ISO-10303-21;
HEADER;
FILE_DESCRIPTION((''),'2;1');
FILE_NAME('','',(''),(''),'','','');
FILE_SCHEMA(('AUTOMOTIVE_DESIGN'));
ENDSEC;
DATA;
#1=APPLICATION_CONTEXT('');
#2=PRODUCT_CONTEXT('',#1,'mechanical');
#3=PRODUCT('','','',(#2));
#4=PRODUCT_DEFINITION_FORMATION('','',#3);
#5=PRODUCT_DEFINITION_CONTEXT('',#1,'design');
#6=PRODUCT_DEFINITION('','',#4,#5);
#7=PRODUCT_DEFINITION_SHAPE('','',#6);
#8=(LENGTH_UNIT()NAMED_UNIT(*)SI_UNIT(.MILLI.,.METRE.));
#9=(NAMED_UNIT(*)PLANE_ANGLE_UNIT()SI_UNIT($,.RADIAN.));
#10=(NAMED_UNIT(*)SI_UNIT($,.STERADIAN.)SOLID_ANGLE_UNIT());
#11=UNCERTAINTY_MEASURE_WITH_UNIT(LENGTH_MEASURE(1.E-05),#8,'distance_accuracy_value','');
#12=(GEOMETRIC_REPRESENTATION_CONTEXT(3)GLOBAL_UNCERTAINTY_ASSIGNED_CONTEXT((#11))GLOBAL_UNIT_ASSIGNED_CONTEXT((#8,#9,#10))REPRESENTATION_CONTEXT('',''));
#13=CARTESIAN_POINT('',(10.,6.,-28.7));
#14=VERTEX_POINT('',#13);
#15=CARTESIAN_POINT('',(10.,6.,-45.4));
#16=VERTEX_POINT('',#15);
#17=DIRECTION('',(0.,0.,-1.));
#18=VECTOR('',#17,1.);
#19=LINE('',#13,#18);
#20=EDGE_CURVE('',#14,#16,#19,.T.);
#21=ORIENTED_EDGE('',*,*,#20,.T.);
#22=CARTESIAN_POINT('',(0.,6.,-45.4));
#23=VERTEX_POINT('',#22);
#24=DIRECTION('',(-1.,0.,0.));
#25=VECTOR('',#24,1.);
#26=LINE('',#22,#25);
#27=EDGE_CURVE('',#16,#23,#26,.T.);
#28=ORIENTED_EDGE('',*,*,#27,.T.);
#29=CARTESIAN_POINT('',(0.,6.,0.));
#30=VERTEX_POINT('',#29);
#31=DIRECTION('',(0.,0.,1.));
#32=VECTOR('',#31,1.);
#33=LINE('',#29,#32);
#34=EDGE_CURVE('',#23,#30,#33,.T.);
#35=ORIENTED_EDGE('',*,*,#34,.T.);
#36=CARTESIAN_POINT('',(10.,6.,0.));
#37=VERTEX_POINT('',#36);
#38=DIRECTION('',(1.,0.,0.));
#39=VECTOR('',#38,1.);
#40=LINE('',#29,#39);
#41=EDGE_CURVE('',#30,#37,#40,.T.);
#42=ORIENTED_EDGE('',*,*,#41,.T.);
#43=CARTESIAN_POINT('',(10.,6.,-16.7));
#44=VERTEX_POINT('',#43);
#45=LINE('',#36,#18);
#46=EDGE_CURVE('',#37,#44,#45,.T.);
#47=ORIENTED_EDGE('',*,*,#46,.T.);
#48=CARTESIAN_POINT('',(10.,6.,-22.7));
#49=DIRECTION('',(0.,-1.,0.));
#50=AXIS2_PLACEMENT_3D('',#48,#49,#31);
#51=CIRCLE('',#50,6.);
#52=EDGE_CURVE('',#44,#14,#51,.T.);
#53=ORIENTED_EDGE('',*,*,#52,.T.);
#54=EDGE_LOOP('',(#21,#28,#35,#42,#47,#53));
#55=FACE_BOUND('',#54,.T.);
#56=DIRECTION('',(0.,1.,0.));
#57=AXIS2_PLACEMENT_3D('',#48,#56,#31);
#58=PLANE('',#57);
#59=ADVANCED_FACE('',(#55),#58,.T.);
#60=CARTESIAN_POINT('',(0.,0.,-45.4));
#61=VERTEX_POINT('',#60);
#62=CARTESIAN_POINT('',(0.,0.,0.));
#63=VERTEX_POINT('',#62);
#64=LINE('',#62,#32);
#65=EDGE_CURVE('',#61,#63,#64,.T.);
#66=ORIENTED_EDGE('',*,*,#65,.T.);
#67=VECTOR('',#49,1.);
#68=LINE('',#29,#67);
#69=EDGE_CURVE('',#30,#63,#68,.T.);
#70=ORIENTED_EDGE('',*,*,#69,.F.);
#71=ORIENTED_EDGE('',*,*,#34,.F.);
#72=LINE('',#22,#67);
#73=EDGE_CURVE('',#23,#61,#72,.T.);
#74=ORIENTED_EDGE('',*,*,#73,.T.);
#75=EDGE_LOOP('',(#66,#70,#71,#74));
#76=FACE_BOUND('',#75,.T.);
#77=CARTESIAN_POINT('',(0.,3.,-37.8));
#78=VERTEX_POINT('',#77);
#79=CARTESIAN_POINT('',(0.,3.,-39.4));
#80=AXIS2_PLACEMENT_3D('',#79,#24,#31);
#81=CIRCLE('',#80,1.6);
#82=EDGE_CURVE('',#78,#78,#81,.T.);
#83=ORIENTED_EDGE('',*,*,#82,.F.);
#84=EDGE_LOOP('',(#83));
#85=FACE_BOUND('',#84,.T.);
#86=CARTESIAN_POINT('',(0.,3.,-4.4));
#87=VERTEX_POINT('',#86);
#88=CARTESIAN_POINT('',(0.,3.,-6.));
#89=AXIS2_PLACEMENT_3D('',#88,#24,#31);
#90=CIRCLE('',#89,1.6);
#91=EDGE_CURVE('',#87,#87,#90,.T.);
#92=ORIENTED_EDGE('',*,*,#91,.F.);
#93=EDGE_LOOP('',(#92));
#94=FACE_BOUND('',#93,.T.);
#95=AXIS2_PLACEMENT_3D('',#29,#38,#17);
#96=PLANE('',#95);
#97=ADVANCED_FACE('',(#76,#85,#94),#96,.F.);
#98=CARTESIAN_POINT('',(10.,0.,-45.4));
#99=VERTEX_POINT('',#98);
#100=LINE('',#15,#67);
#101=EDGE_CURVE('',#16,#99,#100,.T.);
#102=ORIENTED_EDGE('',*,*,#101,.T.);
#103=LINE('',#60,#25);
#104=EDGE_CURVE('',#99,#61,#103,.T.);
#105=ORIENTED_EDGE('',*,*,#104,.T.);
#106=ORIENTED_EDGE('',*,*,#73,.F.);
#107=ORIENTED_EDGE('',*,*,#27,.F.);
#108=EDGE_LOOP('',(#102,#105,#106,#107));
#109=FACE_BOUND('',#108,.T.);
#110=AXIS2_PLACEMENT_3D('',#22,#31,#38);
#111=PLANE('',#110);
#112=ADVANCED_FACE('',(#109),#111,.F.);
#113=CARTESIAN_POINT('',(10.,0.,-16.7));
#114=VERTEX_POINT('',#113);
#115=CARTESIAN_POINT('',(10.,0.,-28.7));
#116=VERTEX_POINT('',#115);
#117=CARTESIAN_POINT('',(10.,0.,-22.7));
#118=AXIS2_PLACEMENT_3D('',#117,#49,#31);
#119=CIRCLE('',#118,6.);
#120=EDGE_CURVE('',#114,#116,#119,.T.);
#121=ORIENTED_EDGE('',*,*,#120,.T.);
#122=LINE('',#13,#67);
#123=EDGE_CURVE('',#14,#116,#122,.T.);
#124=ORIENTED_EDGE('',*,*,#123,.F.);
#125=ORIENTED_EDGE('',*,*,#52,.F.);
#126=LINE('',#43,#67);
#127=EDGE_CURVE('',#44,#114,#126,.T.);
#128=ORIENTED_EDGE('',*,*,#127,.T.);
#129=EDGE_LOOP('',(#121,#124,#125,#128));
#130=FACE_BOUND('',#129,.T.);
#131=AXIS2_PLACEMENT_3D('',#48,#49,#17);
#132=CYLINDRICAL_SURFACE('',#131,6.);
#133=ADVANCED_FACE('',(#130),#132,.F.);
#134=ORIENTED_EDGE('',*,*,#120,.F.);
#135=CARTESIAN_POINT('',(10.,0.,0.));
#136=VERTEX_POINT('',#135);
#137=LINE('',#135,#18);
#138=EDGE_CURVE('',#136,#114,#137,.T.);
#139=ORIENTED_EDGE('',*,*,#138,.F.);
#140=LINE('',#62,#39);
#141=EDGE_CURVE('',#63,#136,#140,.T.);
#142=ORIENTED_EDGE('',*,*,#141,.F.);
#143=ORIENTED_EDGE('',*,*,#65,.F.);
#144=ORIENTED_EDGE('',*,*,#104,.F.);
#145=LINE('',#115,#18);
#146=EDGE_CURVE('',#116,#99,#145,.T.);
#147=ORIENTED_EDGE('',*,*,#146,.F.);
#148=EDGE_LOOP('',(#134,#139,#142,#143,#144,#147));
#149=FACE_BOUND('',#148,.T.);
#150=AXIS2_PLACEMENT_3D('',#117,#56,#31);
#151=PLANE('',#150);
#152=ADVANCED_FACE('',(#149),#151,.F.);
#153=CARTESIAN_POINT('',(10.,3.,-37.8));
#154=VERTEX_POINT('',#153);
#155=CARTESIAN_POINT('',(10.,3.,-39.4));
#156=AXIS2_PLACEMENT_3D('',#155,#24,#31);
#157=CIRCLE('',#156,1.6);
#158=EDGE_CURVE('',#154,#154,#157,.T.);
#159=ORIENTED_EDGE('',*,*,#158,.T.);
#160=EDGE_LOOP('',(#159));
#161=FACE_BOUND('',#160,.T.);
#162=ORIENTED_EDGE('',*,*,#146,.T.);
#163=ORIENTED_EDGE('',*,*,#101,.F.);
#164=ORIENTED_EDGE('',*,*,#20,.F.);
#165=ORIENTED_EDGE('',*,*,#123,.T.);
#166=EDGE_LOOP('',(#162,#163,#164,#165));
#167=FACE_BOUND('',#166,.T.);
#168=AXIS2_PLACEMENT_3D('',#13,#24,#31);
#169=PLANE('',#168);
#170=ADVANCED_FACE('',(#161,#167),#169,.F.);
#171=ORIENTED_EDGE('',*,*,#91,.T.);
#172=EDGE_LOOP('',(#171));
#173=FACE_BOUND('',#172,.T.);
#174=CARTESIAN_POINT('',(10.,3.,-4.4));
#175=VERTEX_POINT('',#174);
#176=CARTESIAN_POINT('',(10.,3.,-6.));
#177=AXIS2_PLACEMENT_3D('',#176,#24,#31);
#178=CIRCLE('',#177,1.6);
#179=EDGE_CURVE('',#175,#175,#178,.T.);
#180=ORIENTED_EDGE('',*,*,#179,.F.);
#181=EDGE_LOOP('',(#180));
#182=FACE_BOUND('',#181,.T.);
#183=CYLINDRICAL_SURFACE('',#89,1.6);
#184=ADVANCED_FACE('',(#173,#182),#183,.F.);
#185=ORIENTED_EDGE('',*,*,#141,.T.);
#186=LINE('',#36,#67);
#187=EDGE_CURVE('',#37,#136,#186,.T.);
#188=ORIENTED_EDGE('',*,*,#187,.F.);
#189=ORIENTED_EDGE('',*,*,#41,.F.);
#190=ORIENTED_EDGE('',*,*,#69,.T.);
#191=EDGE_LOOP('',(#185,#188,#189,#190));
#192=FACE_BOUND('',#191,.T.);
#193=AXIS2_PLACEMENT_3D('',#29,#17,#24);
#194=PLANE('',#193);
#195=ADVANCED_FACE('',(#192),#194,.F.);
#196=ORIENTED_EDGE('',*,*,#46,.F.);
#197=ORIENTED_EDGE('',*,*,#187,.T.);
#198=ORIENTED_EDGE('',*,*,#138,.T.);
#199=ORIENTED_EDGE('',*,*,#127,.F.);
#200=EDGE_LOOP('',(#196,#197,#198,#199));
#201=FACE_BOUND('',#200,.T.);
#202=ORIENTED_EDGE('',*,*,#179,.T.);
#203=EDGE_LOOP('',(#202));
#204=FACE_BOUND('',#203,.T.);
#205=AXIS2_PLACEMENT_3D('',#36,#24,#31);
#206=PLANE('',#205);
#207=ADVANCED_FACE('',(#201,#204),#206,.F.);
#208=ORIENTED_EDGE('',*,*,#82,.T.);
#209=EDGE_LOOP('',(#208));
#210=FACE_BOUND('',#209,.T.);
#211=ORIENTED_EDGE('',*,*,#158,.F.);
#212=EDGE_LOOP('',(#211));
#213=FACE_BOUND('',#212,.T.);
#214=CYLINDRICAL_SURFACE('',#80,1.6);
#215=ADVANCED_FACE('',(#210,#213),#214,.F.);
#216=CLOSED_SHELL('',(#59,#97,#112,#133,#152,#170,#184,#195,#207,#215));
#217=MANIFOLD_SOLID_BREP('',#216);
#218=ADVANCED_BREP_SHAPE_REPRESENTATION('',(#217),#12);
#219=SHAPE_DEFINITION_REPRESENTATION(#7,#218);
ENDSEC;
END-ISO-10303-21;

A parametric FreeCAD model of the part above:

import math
import FreeCAD as App
import Part
import Sketcher
Q = App.Units.Quantity

doc = App.newDocument("Part")
params = doc.addObject("Spreadsheet::Sheet", "Params")
for row, (alias, value) in enumerate([
    ("sketch1_radius", "6 mm"),
    ("sketch1_width", "10 mm"),
    ("sketch1_height", "16.7 mm"),
    ("pad1_length", "6 mm"),
    ("sketch2_diameter", "3.2 mm"),
    ("hole_diameter", "3.2 mm"),
], start=1):
    params.set(f"A{row}", alias)
    params.set(f"B{row}", "=" + value)
    params.setAlias(f"B{row}", alias)

body = doc.addObject("PartDesign::Body", "Body")

# Sketch on XZ plane
sketch1 = doc.addObject("Sketcher::SketchObject", "Sketch")
body.addObject(sketch1)
sketch1.AttachmentSupport = (doc.XZ_Plane, [""])
sketch1.MapMode = "FlatFace"
sketch1.addGeometry([
    Part.LineSegment(App.Vector(10, -28.7, 0), App.Vector(10, -45.4, 0)),  # 0
    Part.LineSegment(App.Vector(10, -45.4, 0), App.Vector(0, -45.4, 0)),  # 1
    Part.LineSegment(App.Vector(0, -45.4, 0), App.Vector(0, 0, 0)),  # 2
    Part.LineSegment(App.Vector(0, 0, 0), App.Vector(10, 0, 0)),  # 3
    Part.LineSegment(App.Vector(10, 0, 0), App.Vector(10, -16.7, 0)),  # 4
    Part.ArcOfCircle(Part.Circle(App.Vector(10, -22.7, 0), App.Vector(0, 0, 1), 6), math.radians(90), math.radians(270)),  # 5
], False)
sketch1.addConstraint([
    Sketcher.Constraint("Coincident", 0, 2, 1, 1),
    Sketcher.Constraint("Coincident", 1, 2, 2, 1),
    Sketcher.Constraint("Coincident", 2, 2, 3, 1),
    Sketcher.Constraint("Coincident", 3, 2, 4, 1),
    Sketcher.Constraint("Coincident", 4, 2, 5, 1),
    Sketcher.Constraint("Coincident", 5, 2, 0, 1),
    Sketcher.Constraint("Vertical", 0),
    Sketcher.Constraint("Horizontal", 1),
    Sketcher.Constraint("Vertical", 2),
    Sketcher.Constraint("Horizontal", 3),
    Sketcher.Constraint("Vertical", 4),
    Sketcher.Constraint("Coincident", 2, 2, -1, 1),
    Sketcher.Constraint("Vertical", 5, 3, 0, 2),
    Sketcher.Constraint("Vertical", 0, 2, 3, 2),
    Sketcher.Constraint("Equal", 0, 4),
    Sketcher.Constraint("Radius", 5, Q("6 mm")),
    Sketcher.Constraint("DistanceX", 1, 2, 1, 1, Q("10 mm")),
    Sketcher.Constraint("DistanceY", 0, 2, 0, 1, Q("16.7 mm")),
])
sketch1.setExpression("Constraints[15]", "Params.sketch1_radius")
sketch1.setExpression("Constraints[16]", "Params.sketch1_width")
sketch1.setExpression("Constraints[17]", "Params.sketch1_height")
pad1 = doc.addObject("PartDesign::Pad", "Pad")
body.addObject(pad1)
pad1.Profile = sketch1
pad1.setExpression("Length", "Params.pad1_length")
pad1.Reversed = True

# Sketch on YZ plane
sketch2 = doc.addObject("Sketcher::SketchObject", "Sketch001")
body.addObject(sketch2)
sketch2.AttachmentSupport = (doc.YZ_Plane, [""])
sketch2.MapMode = "FlatFace"
sketch2.addGeometry([
    Part.Circle(App.Vector(3, -6, 0), App.Vector(0, 0, 1), 1.6),
    Part.Circle(App.Vector(3, -39.4, 0), App.Vector(0, 0, 1), 1.6),
], False)
sketch2.addConstraint([
    Sketcher.Constraint("Equal", 0, 1),
    Sketcher.Constraint("Vertical", 0, 3, 1, 3),
    Sketcher.Constraint("Diameter", 0, Q("3.2 mm")),
    Sketcher.Constraint("DistanceX", -1, 1, 0, 3, Q("3 mm")),
    Sketcher.Constraint("DistanceY", 0, 3, -1, 1, Q("6 mm")),
    Sketcher.Constraint("DistanceY", 1, 3, -1, 1, Q("39.4 mm")),
])
sketch2.setExpression("Constraints[2]", "Params.sketch2_diameter")
doc.recompute()
hole = doc.addObject("PartDesign::Hole", "Hole")
body.addObject(hole)
hole.Profile = sketch2
hole.ThreadType = "None"
hole.setExpression("Diameter", "Params.hole_diameter")
hole.DepthType = "ThroughAll"
hole.Reversed = True

doc.recompute()
